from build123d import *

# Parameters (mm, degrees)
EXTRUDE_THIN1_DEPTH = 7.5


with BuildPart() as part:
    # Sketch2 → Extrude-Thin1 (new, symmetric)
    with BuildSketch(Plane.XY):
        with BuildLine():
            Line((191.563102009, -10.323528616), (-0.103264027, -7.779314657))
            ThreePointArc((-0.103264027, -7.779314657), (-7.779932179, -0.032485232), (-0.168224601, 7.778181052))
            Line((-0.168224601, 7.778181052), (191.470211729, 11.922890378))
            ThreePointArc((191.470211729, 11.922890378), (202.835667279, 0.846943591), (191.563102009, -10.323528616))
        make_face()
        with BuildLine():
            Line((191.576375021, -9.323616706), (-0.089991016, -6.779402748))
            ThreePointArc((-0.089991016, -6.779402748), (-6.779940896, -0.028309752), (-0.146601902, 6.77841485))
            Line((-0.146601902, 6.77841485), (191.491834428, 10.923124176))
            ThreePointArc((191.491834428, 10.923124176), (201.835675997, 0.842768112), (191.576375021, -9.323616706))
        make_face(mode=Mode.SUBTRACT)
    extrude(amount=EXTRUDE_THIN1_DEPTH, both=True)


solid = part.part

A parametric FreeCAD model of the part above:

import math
import FreeCAD as App
import Part
import Sketcher
Q = App.Units.Quantity

doc = App.newDocument("Part")
body = doc.addObject("PartDesign::Body", "Body")

# Sketch on XY plane
sketch1 = body.newObject("Sketcher::SketchObject", "Sketch")
sketch1.AttachmentSupport = (doc.getObject("XY_Plane"), [""])
sketch1.MapMode = "FlatFace"
sketch1.addGeometry([
    Part.LineSegment(App.Vector(-0.103264, -7.779315, 0), App.Vector(191.563102, -10.323529, 0)),  # 0
    Part.ArcOfCircle(Part.Circle(App.Vector(191.710764, 0.800491, 0), App.Vector(0, 0, 1), 11.125), math.radians(-90.76051), math.radians(91.238986)),  # 1
    Part.LineSegment(App.Vector(191.470212, 11.92289, 0), App.Vector(-0.168225, 7.778181, 0)),  # 2
    Part.ArcOfCircle(Part.Circle(App.Vector(0, 0, 0), App.Vector(0, 0, 1), 7.78), math.radians(91.238986), math.radians(269.23949)),  # 3
    Part.LineSegment(App.Vector(191.576375, -9.323617, 0), App.Vector(-0.089991, -6.779403, 0)),  # 4
    Part.ArcOfCircle(Part.Circle(App.Vector(0, 0, 0), App.Vector(0, 0, 1), 6.78), math.radians(91.238986), math.radians(269.23949)),  # 5
    Part.LineSegment(App.Vector(-0.146602, 6.778415, 0), App.Vector(191.491834, 10.923124, 0)),  # 6
    Part.ArcOfCircle(Part.Circle(App.Vector(191.710764, 0.800491, 0), App.Vector(0, 0, 1), 10.125), math.radians(-90.76051), math.radians(91.238986)),  # 7
], False)
sketch1.addConstraint([
    Sketcher.Constraint("Tangent", 0, 2, 1, 1),
    Sketcher.Constraint("Tangent", 1, 2, 2, 1),
    Sketcher.Constraint("Tangent", 2, 2, 3, 1),
    Sketcher.Constraint("Tangent", 3, 2, 0, 1),
    Sketcher.Constraint("Tangent", 4, 2, 5, 2),
    Sketcher.Constraint("Tangent", 5, 1, 6, 1),
    Sketcher.Constraint("Tangent", 6, 2, 7, 2),
    Sketcher.Constraint("Tangent", 7, 1, 4, 1),
    Sketcher.Constraint("Coincident", 3, 3, -1, 1),
    Sketcher.Constraint("Coincident", 5, 3, -1, 1),
    Sketcher.Constraint("Coincident", 7, 3, 1, 3),
    Sketcher.Constraint("Parallel", 0, 4),
    Sketcher.Constraint("Radius", 3, Q("7.78 mm")),
    Sketcher.Constraint("Radius", 5, Q("6.78 mm")),
    Sketcher.Constraint("Radius", 1, Q("11.125 mm")),
    Sketcher.Constraint("DistanceX", 5, 1, -1, 1, Q("0.146602 mm")),
    Sketcher.Constraint("Distance", 0, Q("191.683251 mm")),
])
pad1 = body.newObject("PartDesign::Pad", "Pad")
pad1.Profile = sketch1
pad1.Length = 15
pad1.Midplane = True

doc.recompute()
